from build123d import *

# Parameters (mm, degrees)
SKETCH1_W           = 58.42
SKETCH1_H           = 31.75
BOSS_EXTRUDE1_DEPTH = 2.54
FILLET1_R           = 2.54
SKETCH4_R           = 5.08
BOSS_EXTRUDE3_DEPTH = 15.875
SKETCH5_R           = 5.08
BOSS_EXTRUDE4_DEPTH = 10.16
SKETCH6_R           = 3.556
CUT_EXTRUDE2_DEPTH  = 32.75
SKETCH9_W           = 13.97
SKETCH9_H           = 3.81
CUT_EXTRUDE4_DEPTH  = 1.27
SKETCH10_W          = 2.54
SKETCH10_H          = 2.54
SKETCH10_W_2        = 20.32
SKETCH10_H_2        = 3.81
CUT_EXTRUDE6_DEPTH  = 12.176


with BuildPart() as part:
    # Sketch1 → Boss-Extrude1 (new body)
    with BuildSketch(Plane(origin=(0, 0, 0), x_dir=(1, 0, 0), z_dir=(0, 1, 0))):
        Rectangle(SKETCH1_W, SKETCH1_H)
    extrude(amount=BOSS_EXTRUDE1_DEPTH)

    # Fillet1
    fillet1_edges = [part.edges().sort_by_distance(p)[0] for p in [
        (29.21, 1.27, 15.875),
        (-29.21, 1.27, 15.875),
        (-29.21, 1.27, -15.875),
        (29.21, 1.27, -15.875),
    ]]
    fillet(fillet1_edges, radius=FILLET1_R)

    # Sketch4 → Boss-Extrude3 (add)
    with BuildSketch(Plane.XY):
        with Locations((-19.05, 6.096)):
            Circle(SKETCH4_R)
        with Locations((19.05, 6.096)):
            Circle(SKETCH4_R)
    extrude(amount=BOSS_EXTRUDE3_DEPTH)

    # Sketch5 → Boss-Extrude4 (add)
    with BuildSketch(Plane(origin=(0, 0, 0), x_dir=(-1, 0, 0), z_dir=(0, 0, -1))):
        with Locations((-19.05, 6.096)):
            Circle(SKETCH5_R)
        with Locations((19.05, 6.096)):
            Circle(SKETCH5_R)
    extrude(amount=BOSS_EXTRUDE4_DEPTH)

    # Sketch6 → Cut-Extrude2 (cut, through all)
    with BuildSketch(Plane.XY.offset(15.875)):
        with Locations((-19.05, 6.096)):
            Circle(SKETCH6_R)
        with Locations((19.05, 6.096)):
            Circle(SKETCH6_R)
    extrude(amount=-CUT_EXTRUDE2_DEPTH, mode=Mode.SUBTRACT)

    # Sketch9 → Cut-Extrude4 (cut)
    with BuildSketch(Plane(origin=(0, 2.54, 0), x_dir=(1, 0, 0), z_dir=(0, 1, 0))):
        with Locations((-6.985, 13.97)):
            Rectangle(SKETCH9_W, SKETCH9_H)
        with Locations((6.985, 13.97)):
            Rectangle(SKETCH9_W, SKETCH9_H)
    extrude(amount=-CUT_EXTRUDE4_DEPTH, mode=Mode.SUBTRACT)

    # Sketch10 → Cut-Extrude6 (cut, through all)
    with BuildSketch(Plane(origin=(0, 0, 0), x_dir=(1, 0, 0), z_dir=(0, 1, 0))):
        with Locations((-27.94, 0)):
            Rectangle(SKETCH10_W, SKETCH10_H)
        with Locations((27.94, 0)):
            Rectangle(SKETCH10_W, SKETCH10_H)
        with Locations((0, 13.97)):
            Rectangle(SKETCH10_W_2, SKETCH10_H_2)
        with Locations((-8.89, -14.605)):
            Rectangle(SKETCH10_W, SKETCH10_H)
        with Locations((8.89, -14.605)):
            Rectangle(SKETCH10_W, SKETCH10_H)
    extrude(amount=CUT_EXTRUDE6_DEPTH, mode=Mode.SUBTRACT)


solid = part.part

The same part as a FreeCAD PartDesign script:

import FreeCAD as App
import Part
import Sketcher
Q = App.Units.Quantity


def edges_at(feature, points):
    """Names of the edges that pass closest to the given points."""
    edges = feature.Shape.Edges
    near = lambda p: min(range(len(edges)), key=lambda i: edges[i].distToShape(Part.Vertex(*p))[0])
    return sorted({f"Edge{near(p) + 1}" for p in points})


def add_polygon(sketch, points):
    """Adds a closed chain of lines whose ends are joined by coincident constraints."""
    first, n = sketch.GeometryCount, len(points)
    for a, b in zip(points, points[1:] + points[:1]):
        sketch.addGeometry(Part.LineSegment(App.Vector(*a, 0), App.Vector(*b, 0)), False)
    for i in range(n):
        sketch.addConstraint(Sketcher.Constraint("Coincident", first + i, 2, first + (i + 1) % n, 1))

doc = App.newDocument("Part")
body = doc.addObject("PartDesign::Body", "Body")

# Sketch on XZ plane
sketch1 = doc.addObject("Sketcher::SketchObject", "Sketch")
body.addObject(sketch1)
sketch1.AttachmentSupport = (doc.XZ_Plane, [""])
sketch1.MapMode = "FlatFace"
add_polygon(sketch1, [(-29.21, -15.875), (-29.21, 15.875), (29.21, 15.875), (29.21, -15.875)])  # lines 0-3
sketch1.addConstraint([
    Sketcher.Constraint("Vertical", 0),
    Sketcher.Constraint("Horizontal", 1),
    Sketcher.Constraint("Vertical", 2),
    Sketcher.Constraint("Horizontal", 3),
    Sketcher.Constraint("Symmetric", 0, 2, 2, 2, -1, 1),
    Sketcher.Constraint("DistanceX", 1, 1, 1, 2, Q("2.3 in")),
    Sketcher.Constraint("DistanceY", 0, 1, 0, 2, Q("1.25 in")),
])
pad1 = doc.addObject("PartDesign::Pad", "Pad")
body.addObject(pad1)
pad1.Profile = sketch1
pad1.Length = Q("0.1 in")
pad1.Reversed = True
doc.recompute()

fillet = doc.addObject("PartDesign::Fillet", "Fillet")
body.addObject(fillet)
fillet.Base = (pad1, edges_at(pad1, [
    (29.21, 1.27, 15.875),
    (-29.21, 1.27, 15.875),
    (-29.21, 1.27, -15.875),
    (29.21, 1.27, -15.875),
]))
fillet.Radius = Q("0.1 in")

# Sketch on XY plane
sketch2 = doc.addObject("Sketcher::SketchObject", "Sketch001")
body.addObject(sketch2)
sketch2.AttachmentSupport = (doc.XY_Plane, [""])
sketch2.MapMode = "FlatFace"
sketch2.addGeometry([
    Part.Circle(App.Vector(-19.05, 6.096, 0), App.Vector(0, 0, 1), 5.08),
    Part.Circle(App.Vector(19.05, 6.096, 0), App.Vector(0, 0, 1), 5.08),
], False)
sketch2.addConstraint([
    Sketcher.Constraint("Equal", 0, 1),
    Sketcher.Constraint("Symmetric", 0, 3, 1, 3, -2),
    Sketcher.Constraint("Diameter", 0, Q("0.4 in")),
    Sketcher.Constraint("DistanceX", 0, 3, 1, 3, Q("1.5 in")),
    Sketcher.Constraint("DistanceY", -1, 1, 0, 3, Q("0.24 in")),
])
pad2 = doc.addObject("PartDesign::Pad", "Pad001")
body.addObject(pad2)
pad2.Profile = sketch2
pad2.Length = Q("0.625 in")

# Sketch on XY plane
sketch3 = doc.addObject("Sketcher::SketchObject", "Sketch002")
body.addObject(sketch3)
sketch3.AttachmentSupport = (doc.XY_Plane, [""])
sketch3.MapMode = "FlatFace"
sketch3.addGeometry([
    Part.Circle(App.Vector(19.05, 6.096, 0), App.Vector(0, 0, 1), 5.08),
    Part.Circle(App.Vector(-19.05, 6.096, 0), App.Vector(0, 0, 1), 5.08),
], False)
sketch3.addConstraint([
    Sketcher.Constraint("Equal", 0, 1),
    Sketcher.Constraint("Symmetric", 0, 3, 1, 3, -2),
    Sketcher.Constraint("Diameter", 0, Q("0.4 in")),
    Sketcher.Constraint("DistanceX", 1, 3, 0, 3, Q("1.5 in")),
    Sketcher.Constraint("DistanceY", -1, 1, 0, 3, Q("0.24 in")),
])
pad3 = doc.addObject("PartDesign::Pad", "Pad002")
body.addObject(pad3)
pad3.Profile = sketch3
pad3.Length = Q("0.4 in")
pad3.Reversed = True

# Sketch on XY plane
sketch4 = doc.addObject("Sketcher::SketchObject", "Sketch003")
body.addObject(sketch4)
sketch4.AttachmentSupport = (doc.XY_Plane, [""])
sketch4.MapMode = "FlatFace"
sketch4.AttachmentOffset = App.Placement(App.Vector(0, 0, 0.625 * 25.4), App.Rotation())
sketch4.addGeometry([
    Part.Circle(App.Vector(-19.05, 6.096, 0), App.Vector(0, 0, 1), 3.556),
    Part.Circle(App.Vector(19.05, 6.096, 0), App.Vector(0, 0, 1), 3.556),
], False)
sketch4.addConstraint([
    Sketcher.Constraint("Equal", 0, 1),
    Sketcher.Constraint("Symmetric", 0, 3, 1, 3, -2),
    Sketcher.Constraint("Diameter", 0, Q("0.28 in")),
    Sketcher.Constraint("DistanceX", 0, 3, 1, 3, Q("1.5 in")),
    Sketcher.Constraint("DistanceY", -1, 1, 0, 3, Q("0.24 in")),
])
pocket1 = doc.addObject("PartDesign::Pocket", "Pocket")
body.addObject(pocket1)
pocket1.Profile = sketch4
pocket1.Type = "ThroughAll"

# Sketch on XZ plane
sketch5 = doc.addObject("Sketcher::SketchObject", "Sketch004")
body.addObject(sketch5)
sketch5.AttachmentSupport = (doc.XZ_Plane, [""])
sketch5.MapMode = "FlatFace"
sketch5.AttachmentOffset = App.Placement(App.Vector(0, 0, -0.1 * 25.4), App.Rotation())
add_polygon(sketch5, [(-13.97, -15.875), (-13.97, -12.065), (13.97, -12.065), (13.97, -15.875)])  # lines 0-3
sketch5.addConstraint([
    Sketcher.Constraint("Vertical", 0),
    Sketcher.Constraint("Horizontal", 1),
    Sketcher.Constraint("Vertical", 2),
    Sketcher.Constraint("Horizontal", 3),
    Sketcher.Constraint("DistanceX", 1, 1, 1, 2, Q("1.1 in")),
    Sketcher.Constraint("DistanceY", 0, 1, 0, 2, Q("0.15 in")),
    Sketcher.Constraint("DistanceX", 0, 2, -1, 1, Q("0.55 in")),
    Sketcher.Constraint("DistanceY", 0, 2, -1, 1, Q("0.475 in")),
])
pocket2 = doc.addObject("PartDesign::Pocket", "Pocket001")
body.addObject(pocket2)
pocket2.Profile = sketch5
pocket2.Length = Q("0.05 in")
pocket2.Reversed = True

# Sketch on XZ plane
sketch6 = doc.addObject("Sketcher::SketchObject", "Sketch005")
body.addObject(sketch6)
sketch6.AttachmentSupport = (doc.XZ_Plane, [""])
sketch6.MapMode = "FlatFace"
add_polygon(sketch6, [(-29.21, -1.27), (-29.21, 1.27), (-26.67, 1.27), (-26.67, -1.27)])  # lines 0-3
add_polygon(sketch6, [(26.67, -1.27), (26.67, 1.27), (29.21, 1.27), (29.21, -1.27)])  # lines 4-7
add_polygon(sketch6, [(-10.16, -15.875), (-10.16, -12.065), (10.16, -12.065), (10.16, -15.875)])  # lines 8-11
add_polygon(sketch6, [(-10.16, 13.335), (-10.16, 15.875), (-7.62, 15.875), (-7.62, 13.335)])  # lines 12-15
add_polygon(sketch6, [(7.62, 13.335), (7.62, 15.875), (10.16, 15.875), (10.16, 13.335)])  # lines 16-19
sketch6.addConstraint([
    Sketcher.Constraint("Vertical", 0),
    Sketcher.Constraint("Horizontal", 1),
    Sketcher.Constraint("Vertical", 2),
    Sketcher.Constraint("Horizontal", 3),
    Sketcher.Constraint("Vertical", 4),
    Sketcher.Constraint("Horizontal", 5),
    Sketcher.Constraint("Vertical", 6),
    Sketcher.Constraint("Horizontal", 7),
    Sketcher.Constraint("Vertical", 8),
    Sketcher.Constraint("Horizontal", 9),
    Sketcher.Constraint("Vertical", 10),
    Sketcher.Constraint("Horizontal", 11),
    Sketcher.Constraint("Vertical", 12),
    Sketcher.Constraint("Horizontal", 13),
    Sketcher.Constraint("Vertical", 14),
    Sketcher.Constraint("Horizontal", 15),
    Sketcher.Constraint("Vertical", 16),
    Sketcher.Constraint("Horizontal", 17),
    Sketcher.Constraint("Vertical", 18),
    Sketcher.Constraint("Horizontal", 19),
    Sketcher.Constraint("Symmetric", 2, 2, 4, 2, -1, 1),
    Sketcher.Constraint("Symmetric", 0, 2, 6, 2, -1, 1),
    Sketcher.Constraint("Symmetric", 10, 2, 12, 2, -1, 1),
    Sketcher.Constraint("Symmetric", 11, 2, 17, 2, -1, 1),
    Sketcher.Constraint("Symmetric", 15, 2, 18, 2, -2),
    Sketcher.Constraint("Horizontal", 1, 2, 4, 2),
    Sketcher.Constraint("Equal", 7, 13),
    Sketcher.Constraint("Equal", 15, 17),
    Sketcher.Constraint("Equal", 19, 0),
    Sketcher.Constraint("Equal", 6, 12),
    Sketcher.Constraint("DistanceX", 1, 1, 1, 2, Q("0.1 in")),
    Sketcher.Constraint("DistanceX", 9, 1, 9, 2, Q("0.8 in")),
    Sketcher.Constraint("DistanceY", 8, 1, 8, 2, Q("0.15 in")),
    Sketcher.Constraint("DistanceX", 1, 2, 4, 2, Q("2.1 in")),
    Sketcher.Constraint("DistanceY", 8, 2, 12, 2, Q("1.1 in")),
])
pocket3 = doc.addObject("PartDesign::Pocket", "Pocket002")
body.addObject(pocket3)
pocket3.Profile = sketch6
pocket3.Type = "ThroughAll"

doc.recompute()
